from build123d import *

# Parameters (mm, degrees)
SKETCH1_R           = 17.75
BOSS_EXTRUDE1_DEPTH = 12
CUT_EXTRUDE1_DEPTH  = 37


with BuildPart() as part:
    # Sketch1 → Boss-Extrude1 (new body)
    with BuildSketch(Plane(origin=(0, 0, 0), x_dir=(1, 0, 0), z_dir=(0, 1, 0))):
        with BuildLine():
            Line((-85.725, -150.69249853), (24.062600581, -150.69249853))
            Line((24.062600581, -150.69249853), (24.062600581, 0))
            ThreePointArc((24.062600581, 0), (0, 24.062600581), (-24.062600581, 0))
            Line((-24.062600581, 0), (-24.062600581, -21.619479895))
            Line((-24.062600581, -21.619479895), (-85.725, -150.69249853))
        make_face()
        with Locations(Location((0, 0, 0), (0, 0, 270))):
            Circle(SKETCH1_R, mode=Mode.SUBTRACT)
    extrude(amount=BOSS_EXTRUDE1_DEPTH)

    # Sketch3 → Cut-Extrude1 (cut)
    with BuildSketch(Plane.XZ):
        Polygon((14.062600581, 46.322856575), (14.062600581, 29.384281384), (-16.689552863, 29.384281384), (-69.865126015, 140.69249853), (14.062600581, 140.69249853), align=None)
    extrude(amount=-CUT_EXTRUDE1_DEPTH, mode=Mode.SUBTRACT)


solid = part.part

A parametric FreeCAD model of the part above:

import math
import FreeCAD as App
import Part
import Sketcher
from FreeCAD import Vector
Q = App.Units.Quantity


def add_polygon(sketch, points):
    """Adds a closed chain of lines whose ends are joined by coincident constraints."""
    first, n = sketch.GeometryCount, len(points)
    for a, b in zip(points, points[1:] + points[:1]):
        sketch.addGeometry(Part.LineSegment(App.Vector(*a, 0), App.Vector(*b, 0)), False)
    for i in range(n):
        sketch.addConstraint(Sketcher.Constraint("Coincident", first + i, 2, first + (i + 1) % n, 1))

doc = App.newDocument("Part")
params = doc.addObject("Spreadsheet::Sheet", "Params")
for row, (alias, value) in enumerate([
    ("sketch1_diameter", "35.5 mm"),
    ("pad1_length", "12 mm"),
    ("pocket1_length", "37 mm"),
], start=1):
    params.set(f"A{row}", alias)
    params.set(f"B{row}", "=" + value)
    params.setAlias(f"B{row}", alias)

body = doc.addObject("PartDesign::Body", "Body")

# Sketch on XZ plane
sketch1 = body.newObject("Sketcher::SketchObject", "Sketch")
sketch1.AttachmentSupport = (doc.getObject("XZ_Plane"), [""])
sketch1.MapMode = "FlatFace"
sketch1.addGeometry([
    Part.LineSegment(Vector(-86, 151, 0), Vector(24, 151, 0)),  # 0
    Part.LineSegment(Vector(24, 151, 0), Vector(24, 0, 0)),  # 1
    Part.ArcOfCircle(Part.Circle(Vector(0, 0, 0), Vector(0, 0, 1), 24), math.radians(180), math.radians(360)),  # 2
    Part.LineSegment(Vector(-24, 0, 0), Vector(-24, 22, 0)),  # 3
    Part.LineSegment(Vector(-24, 22, 0), Vector(-86, 151, 0)),  # 4
    Part.Circle(Vector(0, 0, 0), Vector(0, 0, 1), 18),  # 5
], False)
sketch1.addConstraint([
    Sketcher.Constraint("Coincident", 0, 2, 1, 1),
    Sketcher.Constraint("Tangent", 1, 2, 2, 2),
    Sketcher.Constraint("Tangent", 2, 1, 3, 1),
    Sketcher.Constraint("Coincident", 3, 2, 4, 1),
    Sketcher.Constraint("Coincident", 4, 2, 0, 1),
    Sketcher.Constraint("Horizontal", 0),
    Sketcher.Constraint("Vertical", 1),
    Sketcher.Constraint("Vertical", 3),
    Sketcher.Constraint("Coincident", 2, 3, -1, 1),
    Sketcher.Constraint("Coincident", 5, 3, -1, 1),
    Sketcher.Constraint("Diameter", 5, Q("35.5 mm")),
    Sketcher.Constraint("Radius", 2, Q("24.062601 mm")),
    Sketcher.Constraint("DistanceX", 0, 1, 0, 2, Q("109.787601 mm")),
    Sketcher.Constraint("DistanceY", 1, 2, 1, 1, Q("150.692499 mm")),
    Sketcher.Constraint("DistanceY", 3, 1, 3, 2, Q("21.61948 mm")),
])
sketch1.setExpression("Constraints[10]", "Params.sketch1_diameter")
pad1 = body.newObject("PartDesign::Pad", "Pad")
pad1.Profile = sketch1
pad1.setExpression("Length", "Params.pad1_length")
pad1.Reversed = True

# Sketch on XZ plane
sketch2 = body.newObject("Sketcher::SketchObject", "Sketch001")
sketch2.AttachmentSupport = (doc.getObject("XZ_Plane"), [""])
sketch2.MapMode = "FlatFace"
add_polygon(sketch2, [(14, 29), (14, 141), (-70, 141), (-17, 29)])  # lines 0-3
sketch2.addConstraint([
    Sketcher.Constraint("Vertical", 0),
    Sketcher.Constraint("Horizontal", 1),
    Sketcher.Constraint("Horizontal", 3),
    Sketcher.Constraint("DistanceX", -1, 1, 0, 2, Q("14.062601 mm")),
    Sketcher.Constraint("DistanceY", -1, 1, 0, 2, Q("140.692499 mm")),
    Sketcher.Constraint("DistanceX", 1, 2, 1, 1, Q("83.927727 mm")),
    Sketcher.Constraint("DistanceX", 3, 1, 3, 2, Q("30.752153 mm")),
    Sketcher.Constraint("DistanceY", 0, 1, 0, 2, Q("111.308217 mm")),
])
pocket1 = body.newObject("PartDesign::Pocket", "Pocket")
pocket1.Profile = sketch2
pocket1.setExpression("Length", "Params.pocket1_length")

doc.recompute()
